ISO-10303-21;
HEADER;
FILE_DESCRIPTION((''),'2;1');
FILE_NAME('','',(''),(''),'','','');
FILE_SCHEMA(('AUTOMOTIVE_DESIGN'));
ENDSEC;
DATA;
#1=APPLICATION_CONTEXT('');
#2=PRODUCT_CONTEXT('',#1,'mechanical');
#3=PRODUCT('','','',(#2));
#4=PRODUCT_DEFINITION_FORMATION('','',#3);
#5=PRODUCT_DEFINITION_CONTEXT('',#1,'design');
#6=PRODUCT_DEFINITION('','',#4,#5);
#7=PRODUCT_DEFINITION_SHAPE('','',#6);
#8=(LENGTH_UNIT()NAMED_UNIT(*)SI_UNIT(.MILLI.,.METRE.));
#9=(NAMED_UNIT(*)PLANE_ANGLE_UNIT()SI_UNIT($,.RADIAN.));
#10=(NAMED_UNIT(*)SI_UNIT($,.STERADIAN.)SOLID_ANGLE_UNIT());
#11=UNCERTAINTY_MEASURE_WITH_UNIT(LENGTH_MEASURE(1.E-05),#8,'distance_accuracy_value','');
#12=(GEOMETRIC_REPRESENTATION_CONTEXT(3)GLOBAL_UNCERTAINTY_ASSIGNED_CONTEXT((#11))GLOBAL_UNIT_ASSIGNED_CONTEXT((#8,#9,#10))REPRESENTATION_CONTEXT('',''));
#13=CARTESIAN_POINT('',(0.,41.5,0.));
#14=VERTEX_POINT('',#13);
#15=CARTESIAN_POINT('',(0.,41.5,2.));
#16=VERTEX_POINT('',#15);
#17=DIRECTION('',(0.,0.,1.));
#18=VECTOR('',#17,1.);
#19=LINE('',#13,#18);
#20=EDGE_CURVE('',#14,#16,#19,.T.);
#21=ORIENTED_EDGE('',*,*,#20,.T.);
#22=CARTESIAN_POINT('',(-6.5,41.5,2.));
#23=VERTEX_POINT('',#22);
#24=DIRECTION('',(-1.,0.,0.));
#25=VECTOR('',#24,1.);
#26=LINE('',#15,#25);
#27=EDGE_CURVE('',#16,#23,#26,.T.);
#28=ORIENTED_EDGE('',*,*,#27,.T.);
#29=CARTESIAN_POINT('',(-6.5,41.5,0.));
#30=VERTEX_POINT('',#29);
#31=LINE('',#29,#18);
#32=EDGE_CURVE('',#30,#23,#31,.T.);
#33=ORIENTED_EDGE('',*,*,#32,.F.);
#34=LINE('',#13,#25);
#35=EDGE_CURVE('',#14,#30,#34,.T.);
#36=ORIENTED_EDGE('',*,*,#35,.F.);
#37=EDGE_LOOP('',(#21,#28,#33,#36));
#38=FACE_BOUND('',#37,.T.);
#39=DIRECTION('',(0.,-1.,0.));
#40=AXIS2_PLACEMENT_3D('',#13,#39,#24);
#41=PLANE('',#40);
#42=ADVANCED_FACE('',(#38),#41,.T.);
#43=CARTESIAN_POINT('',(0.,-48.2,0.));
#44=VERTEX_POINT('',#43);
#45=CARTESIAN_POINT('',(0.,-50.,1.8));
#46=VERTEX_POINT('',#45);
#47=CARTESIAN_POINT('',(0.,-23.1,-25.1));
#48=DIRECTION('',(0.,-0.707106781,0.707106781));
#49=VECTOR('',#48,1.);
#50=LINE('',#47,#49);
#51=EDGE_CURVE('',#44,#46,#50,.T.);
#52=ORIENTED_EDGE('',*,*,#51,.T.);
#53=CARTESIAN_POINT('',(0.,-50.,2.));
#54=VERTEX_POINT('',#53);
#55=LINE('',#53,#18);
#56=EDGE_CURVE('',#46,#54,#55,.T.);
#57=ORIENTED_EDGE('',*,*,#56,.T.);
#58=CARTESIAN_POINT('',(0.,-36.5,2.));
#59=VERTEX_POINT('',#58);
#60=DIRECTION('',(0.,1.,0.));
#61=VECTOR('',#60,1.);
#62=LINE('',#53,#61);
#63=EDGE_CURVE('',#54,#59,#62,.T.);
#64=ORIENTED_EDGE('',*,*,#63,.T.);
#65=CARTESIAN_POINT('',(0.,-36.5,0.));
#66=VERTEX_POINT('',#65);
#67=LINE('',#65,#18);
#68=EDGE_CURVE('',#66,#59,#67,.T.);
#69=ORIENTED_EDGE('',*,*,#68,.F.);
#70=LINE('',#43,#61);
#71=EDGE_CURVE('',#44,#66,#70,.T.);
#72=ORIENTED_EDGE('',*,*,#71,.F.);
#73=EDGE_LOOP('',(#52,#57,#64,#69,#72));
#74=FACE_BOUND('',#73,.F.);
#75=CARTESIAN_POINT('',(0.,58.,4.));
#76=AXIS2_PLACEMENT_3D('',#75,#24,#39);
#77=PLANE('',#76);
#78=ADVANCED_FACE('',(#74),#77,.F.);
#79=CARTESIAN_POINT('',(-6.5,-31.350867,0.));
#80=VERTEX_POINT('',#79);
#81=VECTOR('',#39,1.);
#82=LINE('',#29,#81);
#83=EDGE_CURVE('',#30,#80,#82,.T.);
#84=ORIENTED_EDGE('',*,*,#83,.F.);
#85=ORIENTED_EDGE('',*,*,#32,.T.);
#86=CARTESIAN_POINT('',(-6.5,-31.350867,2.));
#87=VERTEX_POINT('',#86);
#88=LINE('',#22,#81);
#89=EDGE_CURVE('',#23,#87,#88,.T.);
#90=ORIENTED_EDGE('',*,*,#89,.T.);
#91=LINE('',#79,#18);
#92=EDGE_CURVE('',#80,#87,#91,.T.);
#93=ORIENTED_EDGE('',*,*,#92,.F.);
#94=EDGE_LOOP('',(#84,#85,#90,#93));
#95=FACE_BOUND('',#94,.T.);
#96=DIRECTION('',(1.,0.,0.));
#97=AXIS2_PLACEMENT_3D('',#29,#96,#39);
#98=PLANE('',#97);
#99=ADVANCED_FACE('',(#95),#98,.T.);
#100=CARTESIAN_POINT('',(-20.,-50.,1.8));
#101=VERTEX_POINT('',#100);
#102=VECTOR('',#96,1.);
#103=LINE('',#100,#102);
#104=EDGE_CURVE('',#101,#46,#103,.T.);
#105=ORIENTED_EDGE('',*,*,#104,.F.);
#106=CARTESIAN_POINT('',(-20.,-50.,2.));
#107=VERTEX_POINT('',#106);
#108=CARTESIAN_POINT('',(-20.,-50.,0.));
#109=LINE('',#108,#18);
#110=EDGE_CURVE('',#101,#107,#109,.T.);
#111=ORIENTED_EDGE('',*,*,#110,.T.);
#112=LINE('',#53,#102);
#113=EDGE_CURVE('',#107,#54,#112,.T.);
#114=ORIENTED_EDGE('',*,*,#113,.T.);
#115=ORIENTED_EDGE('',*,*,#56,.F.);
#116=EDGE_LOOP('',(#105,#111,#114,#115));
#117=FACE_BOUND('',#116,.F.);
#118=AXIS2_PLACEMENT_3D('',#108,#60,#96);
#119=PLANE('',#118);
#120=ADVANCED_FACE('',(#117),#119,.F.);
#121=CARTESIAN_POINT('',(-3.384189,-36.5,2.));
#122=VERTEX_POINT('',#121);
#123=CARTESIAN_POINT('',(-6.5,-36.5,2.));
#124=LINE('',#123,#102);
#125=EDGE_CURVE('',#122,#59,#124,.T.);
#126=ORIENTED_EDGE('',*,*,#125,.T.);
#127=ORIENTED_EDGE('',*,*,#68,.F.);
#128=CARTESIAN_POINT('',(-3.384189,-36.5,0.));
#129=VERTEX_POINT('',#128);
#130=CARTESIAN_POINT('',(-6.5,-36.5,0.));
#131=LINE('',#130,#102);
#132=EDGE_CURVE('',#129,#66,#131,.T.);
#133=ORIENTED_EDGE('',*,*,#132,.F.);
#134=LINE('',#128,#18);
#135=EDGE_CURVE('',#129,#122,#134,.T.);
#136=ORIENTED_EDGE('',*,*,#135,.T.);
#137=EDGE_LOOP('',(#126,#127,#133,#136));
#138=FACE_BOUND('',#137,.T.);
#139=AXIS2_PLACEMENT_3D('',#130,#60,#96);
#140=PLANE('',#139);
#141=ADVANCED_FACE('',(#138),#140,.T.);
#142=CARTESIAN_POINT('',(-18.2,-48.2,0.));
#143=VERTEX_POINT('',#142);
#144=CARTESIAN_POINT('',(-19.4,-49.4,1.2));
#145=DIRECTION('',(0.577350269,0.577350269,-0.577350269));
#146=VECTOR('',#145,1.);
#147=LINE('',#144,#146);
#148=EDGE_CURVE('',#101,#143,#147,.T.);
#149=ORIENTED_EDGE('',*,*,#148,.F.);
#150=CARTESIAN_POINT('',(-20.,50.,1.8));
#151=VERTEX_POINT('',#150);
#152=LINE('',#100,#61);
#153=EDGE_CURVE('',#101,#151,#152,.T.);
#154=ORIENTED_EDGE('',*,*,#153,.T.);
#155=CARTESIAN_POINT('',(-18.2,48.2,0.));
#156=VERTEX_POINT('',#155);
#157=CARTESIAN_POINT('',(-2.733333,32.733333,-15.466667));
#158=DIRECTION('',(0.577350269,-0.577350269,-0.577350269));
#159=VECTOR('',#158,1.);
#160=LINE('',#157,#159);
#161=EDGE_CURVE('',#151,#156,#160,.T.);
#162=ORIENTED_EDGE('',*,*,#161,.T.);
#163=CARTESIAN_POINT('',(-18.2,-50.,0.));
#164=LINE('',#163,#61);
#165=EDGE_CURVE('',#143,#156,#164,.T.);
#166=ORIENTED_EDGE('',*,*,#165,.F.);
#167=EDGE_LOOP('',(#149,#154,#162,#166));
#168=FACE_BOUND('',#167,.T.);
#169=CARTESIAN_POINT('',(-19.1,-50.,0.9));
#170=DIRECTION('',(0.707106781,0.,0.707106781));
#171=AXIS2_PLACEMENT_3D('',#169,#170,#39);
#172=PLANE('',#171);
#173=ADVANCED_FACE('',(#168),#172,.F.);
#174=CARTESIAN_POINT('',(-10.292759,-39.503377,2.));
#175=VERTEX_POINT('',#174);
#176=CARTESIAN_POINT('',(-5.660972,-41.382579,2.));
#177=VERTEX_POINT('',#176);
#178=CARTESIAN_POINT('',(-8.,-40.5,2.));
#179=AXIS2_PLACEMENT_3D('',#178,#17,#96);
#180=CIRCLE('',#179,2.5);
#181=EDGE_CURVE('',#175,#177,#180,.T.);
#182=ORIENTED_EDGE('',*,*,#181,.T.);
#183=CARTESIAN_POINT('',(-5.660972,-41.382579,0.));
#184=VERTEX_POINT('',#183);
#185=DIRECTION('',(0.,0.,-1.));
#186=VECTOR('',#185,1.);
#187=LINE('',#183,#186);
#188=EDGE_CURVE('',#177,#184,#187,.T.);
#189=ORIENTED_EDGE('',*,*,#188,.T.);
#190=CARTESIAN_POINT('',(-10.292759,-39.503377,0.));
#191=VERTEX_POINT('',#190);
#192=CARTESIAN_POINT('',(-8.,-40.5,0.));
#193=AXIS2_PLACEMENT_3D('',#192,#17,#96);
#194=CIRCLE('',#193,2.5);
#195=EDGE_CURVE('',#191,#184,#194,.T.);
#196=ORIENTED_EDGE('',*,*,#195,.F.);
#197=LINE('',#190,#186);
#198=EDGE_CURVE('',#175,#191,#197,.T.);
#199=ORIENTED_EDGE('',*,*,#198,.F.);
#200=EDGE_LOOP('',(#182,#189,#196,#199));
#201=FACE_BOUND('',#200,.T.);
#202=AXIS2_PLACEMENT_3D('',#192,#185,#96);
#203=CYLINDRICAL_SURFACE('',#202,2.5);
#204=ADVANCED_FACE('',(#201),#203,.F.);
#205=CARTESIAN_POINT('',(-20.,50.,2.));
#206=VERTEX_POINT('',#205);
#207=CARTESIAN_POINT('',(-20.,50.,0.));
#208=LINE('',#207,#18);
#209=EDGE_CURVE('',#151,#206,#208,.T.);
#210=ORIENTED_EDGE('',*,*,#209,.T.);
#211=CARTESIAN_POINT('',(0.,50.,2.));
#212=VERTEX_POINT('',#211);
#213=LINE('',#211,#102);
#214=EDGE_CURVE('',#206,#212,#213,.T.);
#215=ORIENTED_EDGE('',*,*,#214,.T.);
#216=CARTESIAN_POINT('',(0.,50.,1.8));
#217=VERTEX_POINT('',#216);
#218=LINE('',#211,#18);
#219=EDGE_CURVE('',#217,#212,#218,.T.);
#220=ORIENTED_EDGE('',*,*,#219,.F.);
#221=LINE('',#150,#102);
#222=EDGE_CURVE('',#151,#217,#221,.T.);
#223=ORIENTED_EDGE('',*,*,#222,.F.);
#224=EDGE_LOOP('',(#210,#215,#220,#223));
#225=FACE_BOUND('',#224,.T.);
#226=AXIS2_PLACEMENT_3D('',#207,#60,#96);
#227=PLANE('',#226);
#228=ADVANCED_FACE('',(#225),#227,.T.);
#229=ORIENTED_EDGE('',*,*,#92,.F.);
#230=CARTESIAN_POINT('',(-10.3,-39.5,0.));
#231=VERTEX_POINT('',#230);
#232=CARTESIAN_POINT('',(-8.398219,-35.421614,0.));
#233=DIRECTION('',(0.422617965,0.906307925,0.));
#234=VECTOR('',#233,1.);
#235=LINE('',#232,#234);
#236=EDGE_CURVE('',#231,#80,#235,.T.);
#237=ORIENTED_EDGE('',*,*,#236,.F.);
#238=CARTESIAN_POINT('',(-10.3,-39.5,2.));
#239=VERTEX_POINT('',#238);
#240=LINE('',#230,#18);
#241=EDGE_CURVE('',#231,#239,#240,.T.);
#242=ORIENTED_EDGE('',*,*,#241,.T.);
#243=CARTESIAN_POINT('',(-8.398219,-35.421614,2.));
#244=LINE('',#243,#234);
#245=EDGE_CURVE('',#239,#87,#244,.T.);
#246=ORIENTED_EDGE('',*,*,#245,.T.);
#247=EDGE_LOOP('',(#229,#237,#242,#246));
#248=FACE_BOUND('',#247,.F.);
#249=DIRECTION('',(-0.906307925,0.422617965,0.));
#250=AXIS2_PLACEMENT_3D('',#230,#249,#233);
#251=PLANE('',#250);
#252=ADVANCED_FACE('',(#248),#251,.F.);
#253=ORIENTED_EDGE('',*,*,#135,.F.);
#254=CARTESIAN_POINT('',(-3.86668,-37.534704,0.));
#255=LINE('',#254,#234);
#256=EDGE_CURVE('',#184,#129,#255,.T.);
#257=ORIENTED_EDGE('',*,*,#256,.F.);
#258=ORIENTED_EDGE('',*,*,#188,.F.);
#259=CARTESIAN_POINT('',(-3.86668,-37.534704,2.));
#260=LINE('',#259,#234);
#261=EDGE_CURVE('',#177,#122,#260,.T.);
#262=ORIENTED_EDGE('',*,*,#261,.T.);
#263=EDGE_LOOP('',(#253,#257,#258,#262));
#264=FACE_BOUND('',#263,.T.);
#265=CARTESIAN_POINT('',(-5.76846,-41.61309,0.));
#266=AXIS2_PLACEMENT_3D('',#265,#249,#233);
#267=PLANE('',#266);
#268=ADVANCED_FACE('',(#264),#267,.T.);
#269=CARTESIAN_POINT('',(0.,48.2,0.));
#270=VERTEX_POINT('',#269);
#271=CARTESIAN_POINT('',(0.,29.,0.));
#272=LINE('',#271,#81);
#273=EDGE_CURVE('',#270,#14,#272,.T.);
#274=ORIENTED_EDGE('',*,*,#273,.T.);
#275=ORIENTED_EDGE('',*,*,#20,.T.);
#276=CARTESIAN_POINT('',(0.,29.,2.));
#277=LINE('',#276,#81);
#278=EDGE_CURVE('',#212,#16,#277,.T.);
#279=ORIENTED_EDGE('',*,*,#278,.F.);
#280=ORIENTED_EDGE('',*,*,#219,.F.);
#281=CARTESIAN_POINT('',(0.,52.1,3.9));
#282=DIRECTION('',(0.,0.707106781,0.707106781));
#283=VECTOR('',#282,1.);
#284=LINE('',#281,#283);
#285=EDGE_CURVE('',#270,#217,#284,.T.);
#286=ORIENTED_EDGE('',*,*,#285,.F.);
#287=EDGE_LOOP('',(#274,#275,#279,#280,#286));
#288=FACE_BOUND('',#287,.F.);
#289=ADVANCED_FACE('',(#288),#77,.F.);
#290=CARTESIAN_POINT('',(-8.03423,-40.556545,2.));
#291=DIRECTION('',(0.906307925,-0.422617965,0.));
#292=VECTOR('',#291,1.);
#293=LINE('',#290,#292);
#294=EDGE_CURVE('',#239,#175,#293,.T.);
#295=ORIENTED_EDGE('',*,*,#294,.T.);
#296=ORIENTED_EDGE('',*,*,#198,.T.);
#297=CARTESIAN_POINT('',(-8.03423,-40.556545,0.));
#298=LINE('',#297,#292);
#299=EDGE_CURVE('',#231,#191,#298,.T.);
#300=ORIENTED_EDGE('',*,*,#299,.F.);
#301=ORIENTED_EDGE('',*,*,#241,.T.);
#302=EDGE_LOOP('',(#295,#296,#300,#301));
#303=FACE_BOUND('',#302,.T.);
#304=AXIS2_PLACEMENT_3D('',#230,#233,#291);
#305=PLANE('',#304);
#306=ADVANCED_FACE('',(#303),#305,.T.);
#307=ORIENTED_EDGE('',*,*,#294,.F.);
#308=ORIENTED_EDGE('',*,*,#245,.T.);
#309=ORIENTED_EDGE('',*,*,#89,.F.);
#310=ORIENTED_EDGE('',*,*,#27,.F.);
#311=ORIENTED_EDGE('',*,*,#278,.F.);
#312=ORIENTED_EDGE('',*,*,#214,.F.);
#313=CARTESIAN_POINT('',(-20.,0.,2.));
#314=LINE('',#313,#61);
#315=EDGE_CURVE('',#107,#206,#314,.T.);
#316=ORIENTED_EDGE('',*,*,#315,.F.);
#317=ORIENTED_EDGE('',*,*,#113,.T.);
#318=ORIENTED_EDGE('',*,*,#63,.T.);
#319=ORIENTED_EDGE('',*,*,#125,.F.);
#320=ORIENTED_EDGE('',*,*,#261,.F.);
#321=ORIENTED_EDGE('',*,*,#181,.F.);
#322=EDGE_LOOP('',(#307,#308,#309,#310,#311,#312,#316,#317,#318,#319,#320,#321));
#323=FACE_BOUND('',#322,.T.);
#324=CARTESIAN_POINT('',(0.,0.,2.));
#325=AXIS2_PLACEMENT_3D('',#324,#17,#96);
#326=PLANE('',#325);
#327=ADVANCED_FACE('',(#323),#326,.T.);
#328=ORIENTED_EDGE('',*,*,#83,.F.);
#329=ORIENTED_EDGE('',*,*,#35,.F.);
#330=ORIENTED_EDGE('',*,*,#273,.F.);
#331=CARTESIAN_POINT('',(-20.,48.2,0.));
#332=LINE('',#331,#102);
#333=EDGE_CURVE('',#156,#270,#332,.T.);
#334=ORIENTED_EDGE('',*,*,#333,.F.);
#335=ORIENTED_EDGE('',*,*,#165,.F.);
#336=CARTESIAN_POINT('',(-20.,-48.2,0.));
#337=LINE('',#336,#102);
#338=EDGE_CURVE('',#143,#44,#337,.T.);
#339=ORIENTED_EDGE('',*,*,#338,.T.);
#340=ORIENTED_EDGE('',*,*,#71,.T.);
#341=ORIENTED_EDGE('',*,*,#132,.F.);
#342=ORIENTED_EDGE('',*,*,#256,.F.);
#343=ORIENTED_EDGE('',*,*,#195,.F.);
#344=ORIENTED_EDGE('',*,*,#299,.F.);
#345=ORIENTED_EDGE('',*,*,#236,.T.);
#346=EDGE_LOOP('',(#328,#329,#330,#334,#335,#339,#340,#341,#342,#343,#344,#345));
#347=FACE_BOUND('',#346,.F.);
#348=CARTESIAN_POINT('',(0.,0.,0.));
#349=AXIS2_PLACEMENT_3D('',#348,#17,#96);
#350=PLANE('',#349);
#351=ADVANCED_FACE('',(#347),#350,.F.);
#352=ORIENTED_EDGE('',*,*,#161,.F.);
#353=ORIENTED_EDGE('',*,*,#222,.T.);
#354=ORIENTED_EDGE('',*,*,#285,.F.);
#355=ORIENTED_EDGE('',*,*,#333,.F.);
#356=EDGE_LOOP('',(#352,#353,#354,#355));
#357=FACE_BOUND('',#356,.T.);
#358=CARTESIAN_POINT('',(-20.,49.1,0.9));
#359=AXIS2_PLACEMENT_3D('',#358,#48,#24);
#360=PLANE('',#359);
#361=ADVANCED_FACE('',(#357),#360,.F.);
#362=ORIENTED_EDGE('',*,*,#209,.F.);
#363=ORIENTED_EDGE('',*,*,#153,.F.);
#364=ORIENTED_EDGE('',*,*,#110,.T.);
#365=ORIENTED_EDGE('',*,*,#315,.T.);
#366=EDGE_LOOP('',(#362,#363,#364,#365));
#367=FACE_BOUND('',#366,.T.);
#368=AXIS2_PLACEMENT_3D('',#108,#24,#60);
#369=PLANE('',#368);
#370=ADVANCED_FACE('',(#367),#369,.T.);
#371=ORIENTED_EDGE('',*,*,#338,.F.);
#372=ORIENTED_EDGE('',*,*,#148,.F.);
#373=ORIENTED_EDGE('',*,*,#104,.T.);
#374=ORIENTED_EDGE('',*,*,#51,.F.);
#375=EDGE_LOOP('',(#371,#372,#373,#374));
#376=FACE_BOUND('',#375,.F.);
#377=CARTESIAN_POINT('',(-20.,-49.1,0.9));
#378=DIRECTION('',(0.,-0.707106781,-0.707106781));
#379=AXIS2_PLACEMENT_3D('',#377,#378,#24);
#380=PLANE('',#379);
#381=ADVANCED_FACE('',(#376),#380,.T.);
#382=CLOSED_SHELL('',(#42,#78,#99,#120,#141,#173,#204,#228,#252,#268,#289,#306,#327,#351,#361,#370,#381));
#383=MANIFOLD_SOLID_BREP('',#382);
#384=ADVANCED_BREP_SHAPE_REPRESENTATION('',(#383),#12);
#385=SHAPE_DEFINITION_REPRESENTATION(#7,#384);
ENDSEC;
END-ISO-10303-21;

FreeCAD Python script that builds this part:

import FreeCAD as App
import Part
import Sketcher

V = App.Vector
Q = App.Units.Quantity


def edges_at(feature, points):
    """Names of the edges that pass closest to the given points."""
    edges = feature.Shape.Edges
    near = lambda p: min(range(len(edges)), key=lambda i: edges[i].distToShape(Part.Vertex(*p))[0])
    return sorted({f"Edge{near(p) + 1}" for p in points})


def add_polygon(sketch, points):
    """Adds a closed chain of lines whose ends are joined by coincident constraints."""
    first, n = sketch.GeometryCount, len(points)
    for a, b in zip(points, points[1:] + points[:1]):
        sketch.addGeometry(Part.LineSegment(App.Vector(*a, 0), App.Vector(*b, 0)), False)
    for i in range(n):
        sketch.addConstraint(Sketcher.Constraint("Coincident", first + i, 2, first + (i + 1) % n, 1))

doc = App.newDocument("Part")
body = doc.addObject("PartDesign::Body", "Body")

# Sketch on XY plane
sketch1 = doc.addObject("Sketcher::SketchObject", "Sketch")
body.addObject(sketch1)
sketch1.AttachmentSupport = (doc.XY_Plane, [""])
sketch1.MapMode = "FlatFace"
add_polygon(sketch1, [(-20, 50), (-20, -50), (20, -50), (20, 50)])  # lines 0-3
sketch1.addGeometry(Part.Circle(V(-8, -40.5, 0), V(0, 0, 1), 2.5), False)  # 4
add_polygon(sketch1, [(6.5, 36.5), (6.5, -41.5), (0, -41.5), (0, -36.5), (-6.5, -36.5), (-6.5, 41.5), (0, 41.5), (0, 36.5)])  # lines 5-12
sketch1.addGeometry(Part.Circle(V(8, 40.5, 0), V(0, 0, 1), 2.5), False)  # 13
sketch1.addConstraint([
    Sketcher.Constraint("Vertical", 0),
    Sketcher.Constraint("Horizontal", 1),
    Sketcher.Constraint("Vertical", 2),
    Sketcher.Constraint("Horizontal", 3),
    Sketcher.Constraint("Vertical", 5),
    Sketcher.Constraint("Horizontal", 6),
    Sketcher.Constraint("Vertical", 7),
    Sketcher.Constraint("Horizontal", 8),
    Sketcher.Constraint("Vertical", 9),
    Sketcher.Constraint("Horizontal", 10),
    Sketcher.Constraint("Vertical", 11),
    Sketcher.Constraint("Horizontal", 12),
    Sketcher.Constraint("Equal", 4, 13),
    Sketcher.Constraint("Symmetric", 4, 3, 13, 3, -1, 1),
    Sketcher.Constraint("Symmetric", 0, 2, 2, 2, -1, 1),
    Sketcher.Constraint("Symmetric", 5, 2, 9, 2, -1, 1),
    Sketcher.Constraint("Symmetric", 7, 2, 11, 2, -1, 1),
    Sketcher.Constraint("PointOnObject", 6, 2, -2),
    Sketcher.Constraint("Diameter", 4, 5.0),
    Sketcher.Constraint("DistanceX", 1, 1, 1, 2, 40.0),
    Sketcher.Constraint("DistanceY", 0, 2, 0, 1, 100.0),
    Sketcher.Constraint("DistanceY", 5, 2, 5, 1, 78.0),
    Sketcher.Constraint("DistanceY", 7, 1, 7, 2, 5.0),
    Sketcher.Constraint("DistanceX", 6, 2, 6, 1, 6.5),
    Sketcher.Constraint("DistanceX", 4, 3, -1, 1, 8.0),
    Sketcher.Constraint("DistanceY", 4, 3, 13, 3, 81.0),
])
pad1 = doc.addObject("PartDesign::Pad", "Pad")
body.addObject(pad1)
pad1.Profile = sketch1
pad1.Length = 2
doc.recompute()

chamfer = doc.addObject("PartDesign::Chamfer", "Chamfer")
body.addObject(chamfer)
chamfer.Base = (pad1, edges_at(pad1, [
    (-20, 0, 0),
    (0, -50, 0),
    (20, 0, 0),
    (0, 50, 0),
]))
chamfer.Size = 1.8

# Sketch on XY plane
sketch2 = doc.addObject("Sketcher::SketchObject", "Sketch001")
body.addObject(sketch2)
sketch2.AttachmentSupport = (doc.XY_Plane, [""])
sketch2.MapMode = "FlatFace"
sketch2.AttachmentOffset = App.Placement(V(0, 0, 4), App.Rotation())
add_polygon(sketch2, [(0, -61), (0, 58), (22, 58), (22, -61)])  # lines 0-3
sketch2.addConstraint([
    Sketcher.Constraint("Vertical", 0),
    Sketcher.Constraint("Horizontal", 1),
    Sketcher.Constraint("Vertical", 2),
    Sketcher.Constraint("Horizontal", 3),
    Sketcher.Constraint("PointOnObject", 0, 2, -2),
    Sketcher.Constraint("DistanceX", 1, 1, 1, 2, 22.0),
    Sketcher.Constraint("DistanceY", 0, 1, 0, 2, 119.0),
    Sketcher.Constraint("DistanceY", -1, 1, 0, 2, 58.0),
])
pocket1 = doc.addObject("PartDesign::Pocket", "Pocket")
body.addObject(pocket1)
pocket1.Profile = sketch2
pocket1.Length = 7

# Sketch on XY plane
sketch3 = doc.addObject("Sketcher::SketchObject", "Sketch002")
body.addObject(sketch3)
sketch3.AttachmentSupport = (doc.XY_Plane, [""])
sketch3.MapMode = "FlatFace"
add_polygon(sketch3, [(-6.5, -31.3), (-10.3, -39.5), (-5.8, -41.6), (-2, -33.5)])  # lines 0-3
sketch3.addConstraint([
    Sketcher.Constraint("Perpendicular", 0, 1),
    Sketcher.Constraint("Perpendicular", 1, 2),
    Sketcher.Constraint("Perpendicular", 2, 3),
    Sketcher.Constraint("Angle", 0, Q("-114.999981 deg")),
    Sketcher.Constraint("Distance", 0, 9.0),
    Sketcher.Constraint("Distance", 1, 5.0),
    Sketcher.Constraint("DistanceX", 0, 2, -1, 1, 10.3),
    Sketcher.Constraint("DistanceY", 0, 2, -1, 1, 39.5),
])
pocket2 = doc.addObject("PartDesign::Pocket", "Pocket001")
body.addObject(pocket2)
pocket2.Profile = sketch3
pocket2.Length = 2
pocket2.Reversed = True

doc.recompute()
